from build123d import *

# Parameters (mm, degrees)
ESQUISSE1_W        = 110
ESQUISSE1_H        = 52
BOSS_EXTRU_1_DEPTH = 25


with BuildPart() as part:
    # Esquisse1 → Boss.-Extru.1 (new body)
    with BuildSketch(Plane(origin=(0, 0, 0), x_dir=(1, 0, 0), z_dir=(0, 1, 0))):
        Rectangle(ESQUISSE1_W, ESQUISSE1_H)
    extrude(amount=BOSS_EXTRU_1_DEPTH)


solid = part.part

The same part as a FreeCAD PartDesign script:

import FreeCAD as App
import Part
import Sketcher
Q = App.Units.Quantity


def add_polygon(sketch, points):
    """Adds a closed chain of lines whose ends are joined by coincident constraints."""
    first, n = sketch.GeometryCount, len(points)
    for a, b in zip(points, points[1:] + points[:1]):
        sketch.addGeometry(Part.LineSegment(App.Vector(*a, 0), App.Vector(*b, 0)), False)
    for i in range(n):
        sketch.addConstraint(Sketcher.Constraint("Coincident", first + i, 2, first + (i + 1) % n, 1))

doc = App.newDocument("Part")
body = doc.addObject("PartDesign::Body", "Body")

# Sketch on XZ plane
sketch1 = body.newObject("Sketcher::SketchObject", "Sketch")
sketch1.AttachmentSupport = (doc.getObject("XZ_Plane"), [""])
sketch1.MapMode = "FlatFace"
add_polygon(sketch1, [(-55, -26), (-55, 26), (55, 26), (55, -26)])  # lines 0-3
sketch1.addConstraint([
    Sketcher.Constraint("Vertical", 0),
    Sketcher.Constraint("Horizontal", 1),
    Sketcher.Constraint("Vertical", 2),
    Sketcher.Constraint("Horizontal", 3),
    Sketcher.Constraint("Symmetric", 0, 2, 2, 2, -1, 1),
    Sketcher.Constraint("DistanceX", 1, 1, 1, 2, Q("110 mm")),
    Sketcher.Constraint("DistanceY", 0, 1, 0, 2, Q("52 mm")),
])
pad1 = body.newObject("PartDesign::Pad", "Pad")
pad1.Profile = sketch1
pad1.Length = 25
pad1.Reversed = True

doc.recompute()
